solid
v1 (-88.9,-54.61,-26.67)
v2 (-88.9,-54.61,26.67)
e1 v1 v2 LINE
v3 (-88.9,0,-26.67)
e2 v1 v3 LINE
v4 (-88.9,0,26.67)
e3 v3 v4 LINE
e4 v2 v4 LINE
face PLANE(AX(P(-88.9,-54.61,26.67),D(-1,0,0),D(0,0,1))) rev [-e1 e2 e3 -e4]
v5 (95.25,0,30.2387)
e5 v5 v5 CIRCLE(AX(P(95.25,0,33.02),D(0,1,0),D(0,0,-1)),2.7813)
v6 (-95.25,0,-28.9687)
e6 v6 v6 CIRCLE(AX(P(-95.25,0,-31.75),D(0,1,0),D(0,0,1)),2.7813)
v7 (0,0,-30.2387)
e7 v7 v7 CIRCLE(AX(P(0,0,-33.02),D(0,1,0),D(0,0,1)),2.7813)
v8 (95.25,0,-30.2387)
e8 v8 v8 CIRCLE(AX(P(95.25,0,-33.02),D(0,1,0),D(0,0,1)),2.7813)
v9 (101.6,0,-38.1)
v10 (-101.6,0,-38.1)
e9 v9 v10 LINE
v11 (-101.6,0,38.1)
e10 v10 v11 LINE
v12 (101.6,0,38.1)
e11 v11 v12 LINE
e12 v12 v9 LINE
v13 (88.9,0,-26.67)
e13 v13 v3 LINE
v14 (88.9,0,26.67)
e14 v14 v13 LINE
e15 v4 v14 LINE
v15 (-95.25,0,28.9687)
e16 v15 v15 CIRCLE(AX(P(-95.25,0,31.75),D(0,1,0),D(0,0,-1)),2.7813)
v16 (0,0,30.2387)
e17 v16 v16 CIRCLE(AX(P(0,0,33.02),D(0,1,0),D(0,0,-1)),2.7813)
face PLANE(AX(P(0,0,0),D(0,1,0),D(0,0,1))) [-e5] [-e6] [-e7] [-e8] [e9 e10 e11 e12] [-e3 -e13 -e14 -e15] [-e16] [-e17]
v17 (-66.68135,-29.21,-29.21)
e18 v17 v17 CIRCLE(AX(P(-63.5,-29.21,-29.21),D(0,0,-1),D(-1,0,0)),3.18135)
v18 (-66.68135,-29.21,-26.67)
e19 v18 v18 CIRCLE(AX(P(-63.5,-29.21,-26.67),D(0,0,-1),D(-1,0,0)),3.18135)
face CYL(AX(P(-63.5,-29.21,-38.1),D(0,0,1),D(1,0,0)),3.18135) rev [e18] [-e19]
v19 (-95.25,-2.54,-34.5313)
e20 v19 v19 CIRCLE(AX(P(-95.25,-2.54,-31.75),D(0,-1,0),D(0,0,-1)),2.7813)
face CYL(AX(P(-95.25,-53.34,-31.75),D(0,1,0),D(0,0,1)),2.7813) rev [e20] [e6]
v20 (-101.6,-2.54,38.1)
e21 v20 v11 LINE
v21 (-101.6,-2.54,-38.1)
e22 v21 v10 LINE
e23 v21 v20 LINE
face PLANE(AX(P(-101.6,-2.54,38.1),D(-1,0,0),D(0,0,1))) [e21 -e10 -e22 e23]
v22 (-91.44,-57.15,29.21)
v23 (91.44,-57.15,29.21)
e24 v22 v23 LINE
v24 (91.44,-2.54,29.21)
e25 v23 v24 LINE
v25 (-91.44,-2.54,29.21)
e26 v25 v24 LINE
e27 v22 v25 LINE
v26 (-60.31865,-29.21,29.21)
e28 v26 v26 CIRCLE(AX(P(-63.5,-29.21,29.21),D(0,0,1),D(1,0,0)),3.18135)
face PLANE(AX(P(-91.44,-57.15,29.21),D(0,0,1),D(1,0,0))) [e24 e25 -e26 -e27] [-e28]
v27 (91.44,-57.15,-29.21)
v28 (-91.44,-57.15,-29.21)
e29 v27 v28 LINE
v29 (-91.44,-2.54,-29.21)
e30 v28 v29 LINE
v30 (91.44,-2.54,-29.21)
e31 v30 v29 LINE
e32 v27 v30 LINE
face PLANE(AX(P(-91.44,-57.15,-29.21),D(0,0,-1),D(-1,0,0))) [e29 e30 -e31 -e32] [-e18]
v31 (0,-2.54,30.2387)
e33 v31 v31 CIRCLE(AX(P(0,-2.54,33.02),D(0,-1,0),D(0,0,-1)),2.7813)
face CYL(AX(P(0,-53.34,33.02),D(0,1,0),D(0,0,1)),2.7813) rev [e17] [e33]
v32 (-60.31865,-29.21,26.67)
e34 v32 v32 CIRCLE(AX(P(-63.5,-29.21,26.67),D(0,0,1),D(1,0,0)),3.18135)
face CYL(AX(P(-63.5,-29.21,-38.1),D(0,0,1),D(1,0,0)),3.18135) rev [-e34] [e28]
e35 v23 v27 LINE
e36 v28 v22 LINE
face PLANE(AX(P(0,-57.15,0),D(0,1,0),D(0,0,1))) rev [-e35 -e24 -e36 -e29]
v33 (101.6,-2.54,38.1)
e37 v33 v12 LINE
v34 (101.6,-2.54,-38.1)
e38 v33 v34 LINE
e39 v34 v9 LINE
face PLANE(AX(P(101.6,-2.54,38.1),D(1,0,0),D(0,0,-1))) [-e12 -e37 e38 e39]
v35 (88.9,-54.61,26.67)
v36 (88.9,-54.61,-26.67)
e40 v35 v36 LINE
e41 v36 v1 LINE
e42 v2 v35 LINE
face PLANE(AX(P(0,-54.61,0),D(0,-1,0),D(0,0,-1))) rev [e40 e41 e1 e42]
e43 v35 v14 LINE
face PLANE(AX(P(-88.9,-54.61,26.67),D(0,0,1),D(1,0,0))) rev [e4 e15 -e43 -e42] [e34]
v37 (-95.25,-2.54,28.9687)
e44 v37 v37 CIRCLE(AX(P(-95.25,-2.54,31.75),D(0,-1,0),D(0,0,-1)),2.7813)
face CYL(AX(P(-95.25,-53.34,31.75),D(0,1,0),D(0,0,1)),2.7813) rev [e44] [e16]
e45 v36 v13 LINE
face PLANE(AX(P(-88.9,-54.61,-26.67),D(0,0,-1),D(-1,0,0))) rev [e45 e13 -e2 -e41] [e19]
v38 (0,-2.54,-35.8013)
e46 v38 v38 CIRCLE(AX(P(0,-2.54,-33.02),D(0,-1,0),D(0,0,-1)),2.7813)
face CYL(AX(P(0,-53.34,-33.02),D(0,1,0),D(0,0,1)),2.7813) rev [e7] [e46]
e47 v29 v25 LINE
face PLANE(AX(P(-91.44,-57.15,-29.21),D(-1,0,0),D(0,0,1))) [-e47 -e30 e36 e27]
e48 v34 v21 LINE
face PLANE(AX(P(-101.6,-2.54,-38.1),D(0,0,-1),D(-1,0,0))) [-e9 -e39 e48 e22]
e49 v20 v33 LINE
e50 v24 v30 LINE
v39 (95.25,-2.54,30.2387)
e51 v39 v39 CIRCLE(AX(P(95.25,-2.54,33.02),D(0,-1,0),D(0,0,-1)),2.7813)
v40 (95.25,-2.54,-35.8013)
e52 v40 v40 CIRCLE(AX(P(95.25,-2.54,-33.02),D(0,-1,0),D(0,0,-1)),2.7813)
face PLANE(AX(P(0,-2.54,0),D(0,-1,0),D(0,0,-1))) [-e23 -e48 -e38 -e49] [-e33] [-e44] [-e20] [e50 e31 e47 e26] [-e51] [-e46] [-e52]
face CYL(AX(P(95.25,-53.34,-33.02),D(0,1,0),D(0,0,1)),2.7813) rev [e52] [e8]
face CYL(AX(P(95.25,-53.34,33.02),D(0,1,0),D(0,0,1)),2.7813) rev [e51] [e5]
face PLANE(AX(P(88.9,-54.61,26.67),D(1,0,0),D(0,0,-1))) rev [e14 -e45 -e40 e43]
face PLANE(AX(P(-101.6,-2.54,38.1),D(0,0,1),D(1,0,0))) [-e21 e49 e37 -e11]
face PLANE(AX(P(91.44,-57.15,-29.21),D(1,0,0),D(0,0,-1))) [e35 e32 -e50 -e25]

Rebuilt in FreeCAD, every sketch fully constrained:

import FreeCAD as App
import Part
import Sketcher
from FreeCAD import Vector
Q = App.Units.Quantity


def add_polygon(sketch, points):
    """Adds a closed chain of lines whose ends are joined by coincident constraints."""
    first, n = sketch.GeometryCount, len(points)
    for a, b in zip(points, points[1:] + points[:1]):
        sketch.addGeometry(Part.LineSegment(App.Vector(*a, 0), App.Vector(*b, 0)), False)
    for i in range(n):
        sketch.addConstraint(Sketcher.Constraint("Coincident", first + i, 2, first + (i + 1) % n, 1))

doc = App.newDocument("Part")
body = doc.addObject("PartDesign::Body", "Body")

sketch1 = body.newObject("Sketcher::SketchObject", "Sketch")
sketch1.AttachmentSupport = (doc.getObject("XZ_Plane"), [""])
sketch1.MapMode = "FlatFace"
add_polygon(sketch1, [(-91, -29), (-91, 29), (91, 29), (91, -29)])
sketch1.addConstraint(Sketcher.Constraint("Vertical", 0))
sketch1.addConstraint(Sketcher.Constraint("Horizontal", 1))
sketch1.addConstraint(Sketcher.Constraint("Vertical", 2))
sketch1.addConstraint(Sketcher.Constraint("Horizontal", 3))
sketch1.addConstraint(Sketcher.Constraint("Symmetric", 0, 2, 2, 2, -1, 1))
sketch1.addConstraint(Sketcher.Constraint("DistanceX", 1, 1, 1, 2, Q("7.2 in")))
sketch1.addConstraint(Sketcher.Constraint("DistanceY", 0, 1, 0, 2, Q("2.3 in")))
pad1 = body.newObject("PartDesign::Pad", "Pad")
pad1.Profile = sketch1
pad1.Length = Q("2.25 in")

sketch2 = body.newObject("Sketcher::SketchObject", "Sketch001")
sketch2.AttachmentSupport = (doc.getObject("XZ_Plane"), [""])
sketch2.MapMode = "FlatFace"
add_polygon(sketch2, [(-102, -38), (-102, 38), (102, 38), (102, -38)])
sketch2.addConstraint(Sketcher.Constraint("Vertical", 0))
sketch2.addConstraint(Sketcher.Constraint("Horizontal", 1))
sketch2.addConstraint(Sketcher.Constraint("Vertical", 2))
sketch2.addConstraint(Sketcher.Constraint("Horizontal", 3))
sketch2.addConstraint(Sketcher.Constraint("Symmetric", 0, 2, 2, 2, -1, 1))
sketch2.addConstraint(Sketcher.Constraint("DistanceX", 1, 1, 1, 2, Q("8 in")))
sketch2.addConstraint(Sketcher.Constraint("DistanceY", 0, 1, 0, 2, Q("3 in")))
pad2 = body.newObject("PartDesign::Pad", "Pad001")
pad2.Profile = sketch2
pad2.Length = Q("0.1 in")

sketch3 = body.newObject("Sketcher::SketchObject", "Sketch002")
sketch3.AttachmentSupport = (doc.getObject("XZ_Plane"), [""])
sketch3.MapMode = "FlatFace"
add_polygon(sketch3, [(-89, -27), (-89, 27), (89, 27), (89, -27)])
sketch3.addConstraint(Sketcher.Constraint("Vertical", 0))
sketch3.addConstraint(Sketcher.Constraint("Horizontal", 1))
sketch3.addConstraint(Sketcher.Constraint("Vertical", 2))
sketch3.addConstraint(Sketcher.Constraint("Horizontal", 3))
sketch3.addConstraint(Sketcher.Constraint("Symmetric", 0, 2, 2, 2, -1, 1))
sketch3.addConstraint(Sketcher.Constraint("DistanceX", 1, 1, 1, 2, Q("7 in")))
sketch3.addConstraint(Sketcher.Constraint("DistanceY", 0, 1, 0, 2, Q("2.1 in")))
pocket1 = body.newObject("PartDesign::Pocket", "Pocket")
pocket1.Profile = sketch3
pocket1.Length = Q("2.15 in")
pocket1.Reversed = True

sketch4 = body.newObject("Sketcher::SketchObject", "Sketch003")
sketch4.AttachmentSupport = (doc.getObject("XZ_Plane"), [""])
sketch4.MapMode = "FlatFace"
sketch4.addGeometry(Part.Circle(Vector(-95.2, -31.8, 0), Vector(0, 0, 1), 2.8), False)
sketch4.addGeometry(Part.Circle(Vector(0, -33, 0), Vector(0, 0, 1), 2.8), False)
sketch4.addGeometry(Part.Circle(Vector(95.2, -33, 0), Vector(0, 0, 1), 2.8), False)
sketch4.addGeometry(Part.Circle(Vector(95.2, 33, 0), Vector(0, 0, 1), 2.8), False)
sketch4.addGeometry(Part.Circle(Vector(0, 33, 0), Vector(0, 0, 1), 2.8), False)
sketch4.addGeometry(Part.Circle(Vector(-95.2, 31.8, 0), Vector(0, 0, 1), 2.8), False)
sketch4.addConstraint(Sketcher.Constraint("Equal", 0, 1))
sketch4.addConstraint(Sketcher.Constraint("Equal", 1, 2))
sketch4.addConstraint(Sketcher.Constraint("Equal", 2, 3))
sketch4.addConstraint(Sketcher.Constraint("Equal", 3, 4))
sketch4.addConstraint(Sketcher.Constraint("Equal", 4, 5))
sketch4.addConstraint(Sketcher.Constraint("Symmetric", 1, 3, 4, 3, -1, 1))
sketch4.addConstraint(Sketcher.Constraint("Symmetric", 2, 3, 3, 3, -1))
sketch4.addConstraint(Sketcher.Constraint("Symmetric", 0, 3, 5, 3, -1))
sketch4.addConstraint(Sketcher.Constraint("PointOnObject", 1, 3, -2))
sketch4.addConstraint(Sketcher.Constraint("Horizontal", 1, 3, 2, 3))
sketch4.addConstraint(Sketcher.Constraint("Diameter", 0, Q("0.219 in")))
sketch4.addConstraint(Sketcher.Constraint("DistanceY", 1, 3, -1, 1, Q("1.3 in")))
sketch4.addConstraint(Sketcher.Constraint("DistanceX", 0, 3, 2, 3, Q("7.5 in")))
sketch4.addConstraint(Sketcher.Constraint("DistanceY", 0, 3, 5, 3, Q("2.5 in")))
sketch4.addConstraint(Sketcher.Constraint("DistanceX", 0, 3, -1, 1, Q("3.75 in")))
pocket2 = body.newObject("PartDesign::Pocket", "Pocket001")
pocket2.Profile = sketch4
pocket2.Length = Q("2.1 in")
pocket2.Reversed = True

sketch5 = body.newObject("Sketcher::SketchObject", "Sketch004")
sketch5.AttachmentSupport = (doc.getObject("XY_Plane"), [""])
sketch5.MapMode = "FlatFace"
sketch5.addGeometry(Part.Circle(Vector(-63.5, -29.2, 0), Vector(0, 0, 1), 3.2), False)
sketch5.addConstraint(Sketcher.Constraint("Diameter", 0, Q("0.2505 in")))
sketch5.addConstraint(Sketcher.Constraint("DistanceX", 0, 3, -1, 1, Q("2.5 in")))
sketch5.addConstraint(Sketcher.Constraint("DistanceY", 0, 3, -1, 1, Q("1.15 in")))
pocket3 = body.newObject("PartDesign::Pocket", "Pocket002")
pocket3.Profile = sketch5
pocket3.Length = Q("3 in")
pocket3.Midplane = True

doc.recompute()
